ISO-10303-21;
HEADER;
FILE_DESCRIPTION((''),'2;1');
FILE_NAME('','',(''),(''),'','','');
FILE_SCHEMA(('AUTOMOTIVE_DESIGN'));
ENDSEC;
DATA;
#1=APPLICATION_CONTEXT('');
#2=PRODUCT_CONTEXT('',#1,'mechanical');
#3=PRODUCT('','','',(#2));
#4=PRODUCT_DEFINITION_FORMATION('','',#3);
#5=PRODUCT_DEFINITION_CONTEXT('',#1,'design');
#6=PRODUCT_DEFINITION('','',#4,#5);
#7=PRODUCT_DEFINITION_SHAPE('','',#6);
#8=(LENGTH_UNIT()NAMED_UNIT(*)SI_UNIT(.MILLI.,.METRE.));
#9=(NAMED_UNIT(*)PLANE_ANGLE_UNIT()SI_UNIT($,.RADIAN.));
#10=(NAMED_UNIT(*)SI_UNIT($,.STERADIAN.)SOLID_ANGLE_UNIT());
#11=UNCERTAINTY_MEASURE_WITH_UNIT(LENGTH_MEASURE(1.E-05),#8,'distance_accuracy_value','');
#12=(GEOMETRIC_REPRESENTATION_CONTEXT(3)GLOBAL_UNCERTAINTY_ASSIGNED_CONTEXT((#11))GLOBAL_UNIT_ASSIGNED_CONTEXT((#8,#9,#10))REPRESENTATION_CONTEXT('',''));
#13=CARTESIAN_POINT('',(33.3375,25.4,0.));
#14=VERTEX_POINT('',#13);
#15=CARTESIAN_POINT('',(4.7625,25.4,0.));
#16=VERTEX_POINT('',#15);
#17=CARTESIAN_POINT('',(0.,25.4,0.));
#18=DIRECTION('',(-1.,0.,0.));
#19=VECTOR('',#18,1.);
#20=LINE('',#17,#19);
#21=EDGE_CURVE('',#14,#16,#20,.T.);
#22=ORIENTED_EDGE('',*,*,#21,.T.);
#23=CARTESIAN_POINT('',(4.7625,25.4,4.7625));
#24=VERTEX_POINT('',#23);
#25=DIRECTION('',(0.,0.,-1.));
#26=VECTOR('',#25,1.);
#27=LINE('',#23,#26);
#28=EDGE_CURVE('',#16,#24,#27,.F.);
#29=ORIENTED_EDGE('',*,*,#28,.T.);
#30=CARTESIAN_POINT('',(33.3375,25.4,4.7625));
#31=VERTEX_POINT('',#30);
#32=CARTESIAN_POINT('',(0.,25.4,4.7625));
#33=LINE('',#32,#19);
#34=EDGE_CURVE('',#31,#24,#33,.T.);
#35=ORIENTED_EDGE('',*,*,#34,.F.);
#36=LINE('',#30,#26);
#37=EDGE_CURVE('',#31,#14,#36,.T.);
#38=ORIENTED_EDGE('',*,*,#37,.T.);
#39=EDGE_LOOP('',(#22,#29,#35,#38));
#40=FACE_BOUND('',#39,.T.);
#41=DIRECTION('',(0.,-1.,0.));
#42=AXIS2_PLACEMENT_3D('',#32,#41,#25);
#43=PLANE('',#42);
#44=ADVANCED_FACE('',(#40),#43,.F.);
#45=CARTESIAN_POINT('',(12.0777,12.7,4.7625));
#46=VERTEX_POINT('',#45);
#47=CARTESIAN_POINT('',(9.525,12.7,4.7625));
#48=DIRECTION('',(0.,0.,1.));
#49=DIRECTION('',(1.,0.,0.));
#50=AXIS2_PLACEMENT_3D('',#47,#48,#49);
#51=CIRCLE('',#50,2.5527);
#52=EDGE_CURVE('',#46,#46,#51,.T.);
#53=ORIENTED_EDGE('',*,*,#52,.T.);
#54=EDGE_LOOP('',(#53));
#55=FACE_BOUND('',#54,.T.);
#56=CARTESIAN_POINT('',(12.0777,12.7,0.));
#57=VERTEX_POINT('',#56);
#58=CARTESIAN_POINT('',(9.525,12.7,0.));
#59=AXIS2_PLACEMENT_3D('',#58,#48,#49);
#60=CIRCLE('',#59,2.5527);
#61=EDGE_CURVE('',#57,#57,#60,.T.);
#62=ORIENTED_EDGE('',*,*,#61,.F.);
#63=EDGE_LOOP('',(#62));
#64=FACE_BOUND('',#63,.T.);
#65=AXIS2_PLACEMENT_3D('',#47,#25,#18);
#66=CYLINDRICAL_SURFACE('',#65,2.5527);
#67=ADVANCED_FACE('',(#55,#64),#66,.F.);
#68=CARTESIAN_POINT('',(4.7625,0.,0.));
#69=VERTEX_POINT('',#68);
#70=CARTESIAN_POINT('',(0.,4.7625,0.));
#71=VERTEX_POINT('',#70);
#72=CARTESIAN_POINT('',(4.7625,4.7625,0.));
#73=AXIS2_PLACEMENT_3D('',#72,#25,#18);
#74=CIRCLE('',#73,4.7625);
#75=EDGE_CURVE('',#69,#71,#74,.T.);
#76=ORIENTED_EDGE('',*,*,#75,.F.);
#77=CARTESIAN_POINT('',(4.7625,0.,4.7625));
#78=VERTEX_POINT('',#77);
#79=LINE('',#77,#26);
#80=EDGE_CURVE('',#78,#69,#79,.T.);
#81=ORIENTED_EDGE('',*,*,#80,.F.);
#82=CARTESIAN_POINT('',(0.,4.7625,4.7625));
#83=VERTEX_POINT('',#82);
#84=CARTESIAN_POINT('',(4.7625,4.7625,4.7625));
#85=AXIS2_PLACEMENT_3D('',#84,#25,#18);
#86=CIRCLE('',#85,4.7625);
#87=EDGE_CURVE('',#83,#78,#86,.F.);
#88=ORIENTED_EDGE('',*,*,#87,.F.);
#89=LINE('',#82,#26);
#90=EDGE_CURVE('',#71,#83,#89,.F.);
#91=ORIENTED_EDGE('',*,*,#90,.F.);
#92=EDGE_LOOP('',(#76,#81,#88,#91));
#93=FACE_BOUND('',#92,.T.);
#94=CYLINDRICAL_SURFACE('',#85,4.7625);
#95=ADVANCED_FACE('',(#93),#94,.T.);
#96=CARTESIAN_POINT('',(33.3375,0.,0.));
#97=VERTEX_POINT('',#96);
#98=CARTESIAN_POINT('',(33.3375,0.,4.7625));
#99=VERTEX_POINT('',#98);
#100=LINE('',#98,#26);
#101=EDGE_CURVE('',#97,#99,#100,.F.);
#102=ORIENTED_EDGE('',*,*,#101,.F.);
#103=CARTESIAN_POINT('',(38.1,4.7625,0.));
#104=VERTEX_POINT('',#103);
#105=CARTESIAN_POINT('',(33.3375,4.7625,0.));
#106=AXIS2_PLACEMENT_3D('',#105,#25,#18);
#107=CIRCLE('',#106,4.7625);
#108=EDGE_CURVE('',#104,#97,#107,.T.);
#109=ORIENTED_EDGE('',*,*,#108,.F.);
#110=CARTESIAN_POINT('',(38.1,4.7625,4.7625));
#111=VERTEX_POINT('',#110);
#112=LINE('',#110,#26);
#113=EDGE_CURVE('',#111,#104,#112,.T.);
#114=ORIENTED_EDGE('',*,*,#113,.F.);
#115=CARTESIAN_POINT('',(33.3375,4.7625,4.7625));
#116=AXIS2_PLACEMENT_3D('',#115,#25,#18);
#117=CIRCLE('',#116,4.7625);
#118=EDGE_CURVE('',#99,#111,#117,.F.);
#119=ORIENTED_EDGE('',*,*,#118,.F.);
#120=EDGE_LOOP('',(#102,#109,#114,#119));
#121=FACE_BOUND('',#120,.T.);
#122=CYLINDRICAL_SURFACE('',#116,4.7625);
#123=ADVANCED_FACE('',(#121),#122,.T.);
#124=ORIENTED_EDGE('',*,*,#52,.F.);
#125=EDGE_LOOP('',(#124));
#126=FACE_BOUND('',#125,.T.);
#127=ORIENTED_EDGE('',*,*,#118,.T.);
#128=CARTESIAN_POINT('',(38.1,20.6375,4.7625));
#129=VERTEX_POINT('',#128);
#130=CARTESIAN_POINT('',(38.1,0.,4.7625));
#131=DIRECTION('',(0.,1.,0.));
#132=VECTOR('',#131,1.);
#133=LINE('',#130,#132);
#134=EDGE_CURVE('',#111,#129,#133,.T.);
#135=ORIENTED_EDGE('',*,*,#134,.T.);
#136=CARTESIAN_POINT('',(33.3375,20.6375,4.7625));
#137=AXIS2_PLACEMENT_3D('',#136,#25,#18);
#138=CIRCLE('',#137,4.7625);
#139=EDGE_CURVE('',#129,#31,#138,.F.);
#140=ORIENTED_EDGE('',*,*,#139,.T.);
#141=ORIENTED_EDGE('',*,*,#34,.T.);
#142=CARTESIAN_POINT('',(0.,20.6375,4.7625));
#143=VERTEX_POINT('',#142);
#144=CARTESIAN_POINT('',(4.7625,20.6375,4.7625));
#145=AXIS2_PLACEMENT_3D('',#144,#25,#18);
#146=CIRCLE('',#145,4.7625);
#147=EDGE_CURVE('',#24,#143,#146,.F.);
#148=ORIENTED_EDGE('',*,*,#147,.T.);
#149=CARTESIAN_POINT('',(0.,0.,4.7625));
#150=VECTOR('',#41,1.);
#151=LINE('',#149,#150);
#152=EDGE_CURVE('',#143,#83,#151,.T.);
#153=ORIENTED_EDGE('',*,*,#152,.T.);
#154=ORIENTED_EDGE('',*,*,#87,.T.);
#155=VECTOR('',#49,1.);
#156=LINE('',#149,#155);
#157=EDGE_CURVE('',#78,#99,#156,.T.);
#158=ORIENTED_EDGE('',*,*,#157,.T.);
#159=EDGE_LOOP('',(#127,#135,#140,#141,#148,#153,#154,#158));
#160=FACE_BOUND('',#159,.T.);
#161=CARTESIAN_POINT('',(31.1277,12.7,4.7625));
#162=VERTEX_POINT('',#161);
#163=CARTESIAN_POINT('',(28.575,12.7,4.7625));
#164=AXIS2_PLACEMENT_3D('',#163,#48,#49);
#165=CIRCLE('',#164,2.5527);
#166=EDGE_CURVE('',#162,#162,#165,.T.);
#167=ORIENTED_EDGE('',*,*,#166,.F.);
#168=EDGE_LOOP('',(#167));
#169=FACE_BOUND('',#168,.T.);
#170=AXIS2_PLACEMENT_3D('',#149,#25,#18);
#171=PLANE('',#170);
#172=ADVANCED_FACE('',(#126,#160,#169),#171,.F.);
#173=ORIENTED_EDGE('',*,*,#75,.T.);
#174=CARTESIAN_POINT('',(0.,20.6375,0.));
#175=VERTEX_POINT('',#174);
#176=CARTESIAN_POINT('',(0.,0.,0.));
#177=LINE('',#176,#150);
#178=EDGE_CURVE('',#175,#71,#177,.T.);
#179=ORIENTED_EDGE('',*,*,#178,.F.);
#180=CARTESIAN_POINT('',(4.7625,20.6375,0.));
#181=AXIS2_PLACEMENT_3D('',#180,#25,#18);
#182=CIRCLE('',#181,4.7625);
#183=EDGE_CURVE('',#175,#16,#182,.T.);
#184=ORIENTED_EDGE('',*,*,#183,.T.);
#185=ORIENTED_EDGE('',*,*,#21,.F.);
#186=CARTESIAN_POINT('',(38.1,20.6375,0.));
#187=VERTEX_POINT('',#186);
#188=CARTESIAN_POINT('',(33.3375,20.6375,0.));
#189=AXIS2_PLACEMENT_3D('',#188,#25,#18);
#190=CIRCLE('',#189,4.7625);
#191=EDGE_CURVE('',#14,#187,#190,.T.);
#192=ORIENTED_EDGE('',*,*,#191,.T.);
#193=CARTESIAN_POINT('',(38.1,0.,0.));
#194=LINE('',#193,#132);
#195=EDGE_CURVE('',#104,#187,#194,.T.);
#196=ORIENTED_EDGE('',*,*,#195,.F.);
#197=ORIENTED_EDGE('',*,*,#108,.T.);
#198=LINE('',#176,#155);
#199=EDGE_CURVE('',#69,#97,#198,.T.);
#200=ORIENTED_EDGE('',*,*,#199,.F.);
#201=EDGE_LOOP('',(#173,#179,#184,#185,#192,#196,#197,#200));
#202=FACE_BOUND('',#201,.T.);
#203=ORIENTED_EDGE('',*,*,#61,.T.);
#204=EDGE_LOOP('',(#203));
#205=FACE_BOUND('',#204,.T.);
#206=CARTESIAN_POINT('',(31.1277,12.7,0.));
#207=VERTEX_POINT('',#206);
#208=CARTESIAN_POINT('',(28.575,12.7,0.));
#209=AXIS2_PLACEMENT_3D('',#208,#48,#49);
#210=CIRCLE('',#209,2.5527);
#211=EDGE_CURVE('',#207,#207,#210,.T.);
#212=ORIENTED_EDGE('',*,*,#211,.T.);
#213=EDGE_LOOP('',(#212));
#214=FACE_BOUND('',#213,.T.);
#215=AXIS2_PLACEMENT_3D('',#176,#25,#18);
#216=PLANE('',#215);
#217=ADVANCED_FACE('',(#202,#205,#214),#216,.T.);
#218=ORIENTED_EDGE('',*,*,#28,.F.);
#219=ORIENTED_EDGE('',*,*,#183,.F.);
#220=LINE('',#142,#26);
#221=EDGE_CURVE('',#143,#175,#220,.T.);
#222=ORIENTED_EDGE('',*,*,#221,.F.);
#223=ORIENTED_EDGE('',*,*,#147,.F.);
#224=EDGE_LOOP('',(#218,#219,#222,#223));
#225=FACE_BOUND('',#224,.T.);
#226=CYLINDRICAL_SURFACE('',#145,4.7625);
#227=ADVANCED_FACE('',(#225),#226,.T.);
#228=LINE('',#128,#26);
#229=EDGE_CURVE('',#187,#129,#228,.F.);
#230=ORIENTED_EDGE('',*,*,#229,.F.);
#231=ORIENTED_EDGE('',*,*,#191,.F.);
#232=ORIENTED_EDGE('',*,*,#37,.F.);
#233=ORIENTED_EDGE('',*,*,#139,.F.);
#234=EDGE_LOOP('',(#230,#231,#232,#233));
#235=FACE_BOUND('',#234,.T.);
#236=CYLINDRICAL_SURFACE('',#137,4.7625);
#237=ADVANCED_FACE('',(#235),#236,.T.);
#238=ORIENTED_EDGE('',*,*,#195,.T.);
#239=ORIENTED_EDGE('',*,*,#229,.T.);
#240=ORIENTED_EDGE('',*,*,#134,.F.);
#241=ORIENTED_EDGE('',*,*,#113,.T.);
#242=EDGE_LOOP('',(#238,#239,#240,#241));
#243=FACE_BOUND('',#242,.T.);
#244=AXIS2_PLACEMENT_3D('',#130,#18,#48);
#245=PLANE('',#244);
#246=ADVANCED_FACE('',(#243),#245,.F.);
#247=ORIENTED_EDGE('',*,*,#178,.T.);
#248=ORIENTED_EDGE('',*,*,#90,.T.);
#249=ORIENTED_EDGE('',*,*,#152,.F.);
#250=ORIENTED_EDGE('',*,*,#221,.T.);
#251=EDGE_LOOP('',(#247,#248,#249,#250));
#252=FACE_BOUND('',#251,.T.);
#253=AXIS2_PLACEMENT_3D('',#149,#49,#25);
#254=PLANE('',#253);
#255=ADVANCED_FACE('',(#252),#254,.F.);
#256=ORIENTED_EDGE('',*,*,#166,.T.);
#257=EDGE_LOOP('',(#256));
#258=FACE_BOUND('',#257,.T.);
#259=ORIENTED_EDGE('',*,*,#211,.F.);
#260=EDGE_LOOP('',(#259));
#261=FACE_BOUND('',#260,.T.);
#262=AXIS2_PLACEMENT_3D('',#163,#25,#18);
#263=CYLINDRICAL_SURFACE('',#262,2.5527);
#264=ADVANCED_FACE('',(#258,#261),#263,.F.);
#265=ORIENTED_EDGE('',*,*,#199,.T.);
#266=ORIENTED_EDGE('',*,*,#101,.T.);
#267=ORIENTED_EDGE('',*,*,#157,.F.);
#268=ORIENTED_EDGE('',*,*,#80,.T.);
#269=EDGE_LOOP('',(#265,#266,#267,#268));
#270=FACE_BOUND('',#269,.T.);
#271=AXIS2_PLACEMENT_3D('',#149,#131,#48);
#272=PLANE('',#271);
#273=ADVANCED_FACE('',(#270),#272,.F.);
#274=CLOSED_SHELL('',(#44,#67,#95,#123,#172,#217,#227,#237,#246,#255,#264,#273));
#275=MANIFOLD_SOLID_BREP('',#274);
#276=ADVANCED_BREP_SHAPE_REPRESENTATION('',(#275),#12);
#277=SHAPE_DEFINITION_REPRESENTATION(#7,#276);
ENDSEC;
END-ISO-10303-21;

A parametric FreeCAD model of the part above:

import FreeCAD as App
import Part
import Sketcher

V = App.Vector
Q = App.Units.Quantity


def edges_at(feature, points):
    """Names of the edges that pass closest to the given points."""
    edges = feature.Shape.Edges
    near = lambda p: min(range(len(edges)), key=lambda i: edges[i].distToShape(Part.Vertex(*p))[0])
    return sorted({f"Edge{near(p) + 1}" for p in points})


def add_polygon(sketch, points):
    """Adds a closed chain of lines whose ends are joined by coincident constraints."""
    first, n = sketch.GeometryCount, len(points)
    for a, b in zip(points, points[1:] + points[:1]):
        sketch.addGeometry(Part.LineSegment(App.Vector(*a, 0), App.Vector(*b, 0)), False)
    for i in range(n):
        sketch.addConstraint(Sketcher.Constraint("Coincident", first + i, 2, first + (i + 1) % n, 1))

doc = App.newDocument("Part")
body = doc.addObject("PartDesign::Body", "Body")

# Sketch on XY plane
sketch1 = body.newObject("Sketcher::SketchObject", "Sketch")
sketch1.AttachmentSupport = (doc.getObject("XY_Plane"), [""])
sketch1.MapMode = "FlatFace"
add_polygon(sketch1, [(0, 25.4), (0, 0), (38.1, 0), (38.1, 25.4)])  # lines 0-3
sketch1.addGeometry(Part.Circle(V(9.525, 12.7, 0), V(0, 0, 1), 2.5527), False)  # 4
sketch1.addGeometry(Part.Circle(V(28.575, 12.7, 0), V(0, 0, 1), 2.5527), False)  # 5
sketch1.addConstraint(Sketcher.Constraint("Vertical", 0))
sketch1.addConstraint(Sketcher.Constraint("Horizontal", 1))
sketch1.addConstraint(Sketcher.Constraint("Vertical", 2))
sketch1.addConstraint(Sketcher.Constraint("Horizontal", 3))
sketch1.addConstraint(Sketcher.Constraint("Coincident", 0, 2, -1, 1))
sketch1.addConstraint(Sketcher.Constraint("Equal", 4, 5))
sketch1.addConstraint(Sketcher.Constraint("Horizontal", 4, 3, 5, 3))
sketch1.addConstraint(Sketcher.Constraint("DistanceY", 0, 2, 0, 1, Q("1 in")))
sketch1.addConstraint(Sketcher.Constraint("Diameter", 4, Q("0.201 in")))
sketch1.addConstraint(Sketcher.Constraint("DistanceX", 1, 1, 1, 2, Q("1.5 in")))
sketch1.addConstraint(Sketcher.Constraint("DistanceY", -1, 1, 4, 3, Q("0.5 in")))
sketch1.addConstraint(Sketcher.Constraint("DistanceX", 4, 3, 5, 3, Q("0.75 in")))
sketch1.addConstraint(Sketcher.Constraint("DistanceX", -1, 1, 4, 3, Q("0.375 in")))
pad1 = body.newObject("PartDesign::Pad", "Pad")
pad1.Profile = sketch1
pad1.Length = Q("0.1875 in")
doc.recompute()

fillet = body.newObject("PartDesign::Fillet", "Fillet")
fillet.Base = (pad1, edges_at(pad1, [
    (0, 25.4, 2.381),
    (38.1, 25.4, 2.381),
    (38.1, 0, 2.381),
    (0, 0, 2.381),
]))
fillet.Radius = Q("0.1875 in")

doc.recompute()
